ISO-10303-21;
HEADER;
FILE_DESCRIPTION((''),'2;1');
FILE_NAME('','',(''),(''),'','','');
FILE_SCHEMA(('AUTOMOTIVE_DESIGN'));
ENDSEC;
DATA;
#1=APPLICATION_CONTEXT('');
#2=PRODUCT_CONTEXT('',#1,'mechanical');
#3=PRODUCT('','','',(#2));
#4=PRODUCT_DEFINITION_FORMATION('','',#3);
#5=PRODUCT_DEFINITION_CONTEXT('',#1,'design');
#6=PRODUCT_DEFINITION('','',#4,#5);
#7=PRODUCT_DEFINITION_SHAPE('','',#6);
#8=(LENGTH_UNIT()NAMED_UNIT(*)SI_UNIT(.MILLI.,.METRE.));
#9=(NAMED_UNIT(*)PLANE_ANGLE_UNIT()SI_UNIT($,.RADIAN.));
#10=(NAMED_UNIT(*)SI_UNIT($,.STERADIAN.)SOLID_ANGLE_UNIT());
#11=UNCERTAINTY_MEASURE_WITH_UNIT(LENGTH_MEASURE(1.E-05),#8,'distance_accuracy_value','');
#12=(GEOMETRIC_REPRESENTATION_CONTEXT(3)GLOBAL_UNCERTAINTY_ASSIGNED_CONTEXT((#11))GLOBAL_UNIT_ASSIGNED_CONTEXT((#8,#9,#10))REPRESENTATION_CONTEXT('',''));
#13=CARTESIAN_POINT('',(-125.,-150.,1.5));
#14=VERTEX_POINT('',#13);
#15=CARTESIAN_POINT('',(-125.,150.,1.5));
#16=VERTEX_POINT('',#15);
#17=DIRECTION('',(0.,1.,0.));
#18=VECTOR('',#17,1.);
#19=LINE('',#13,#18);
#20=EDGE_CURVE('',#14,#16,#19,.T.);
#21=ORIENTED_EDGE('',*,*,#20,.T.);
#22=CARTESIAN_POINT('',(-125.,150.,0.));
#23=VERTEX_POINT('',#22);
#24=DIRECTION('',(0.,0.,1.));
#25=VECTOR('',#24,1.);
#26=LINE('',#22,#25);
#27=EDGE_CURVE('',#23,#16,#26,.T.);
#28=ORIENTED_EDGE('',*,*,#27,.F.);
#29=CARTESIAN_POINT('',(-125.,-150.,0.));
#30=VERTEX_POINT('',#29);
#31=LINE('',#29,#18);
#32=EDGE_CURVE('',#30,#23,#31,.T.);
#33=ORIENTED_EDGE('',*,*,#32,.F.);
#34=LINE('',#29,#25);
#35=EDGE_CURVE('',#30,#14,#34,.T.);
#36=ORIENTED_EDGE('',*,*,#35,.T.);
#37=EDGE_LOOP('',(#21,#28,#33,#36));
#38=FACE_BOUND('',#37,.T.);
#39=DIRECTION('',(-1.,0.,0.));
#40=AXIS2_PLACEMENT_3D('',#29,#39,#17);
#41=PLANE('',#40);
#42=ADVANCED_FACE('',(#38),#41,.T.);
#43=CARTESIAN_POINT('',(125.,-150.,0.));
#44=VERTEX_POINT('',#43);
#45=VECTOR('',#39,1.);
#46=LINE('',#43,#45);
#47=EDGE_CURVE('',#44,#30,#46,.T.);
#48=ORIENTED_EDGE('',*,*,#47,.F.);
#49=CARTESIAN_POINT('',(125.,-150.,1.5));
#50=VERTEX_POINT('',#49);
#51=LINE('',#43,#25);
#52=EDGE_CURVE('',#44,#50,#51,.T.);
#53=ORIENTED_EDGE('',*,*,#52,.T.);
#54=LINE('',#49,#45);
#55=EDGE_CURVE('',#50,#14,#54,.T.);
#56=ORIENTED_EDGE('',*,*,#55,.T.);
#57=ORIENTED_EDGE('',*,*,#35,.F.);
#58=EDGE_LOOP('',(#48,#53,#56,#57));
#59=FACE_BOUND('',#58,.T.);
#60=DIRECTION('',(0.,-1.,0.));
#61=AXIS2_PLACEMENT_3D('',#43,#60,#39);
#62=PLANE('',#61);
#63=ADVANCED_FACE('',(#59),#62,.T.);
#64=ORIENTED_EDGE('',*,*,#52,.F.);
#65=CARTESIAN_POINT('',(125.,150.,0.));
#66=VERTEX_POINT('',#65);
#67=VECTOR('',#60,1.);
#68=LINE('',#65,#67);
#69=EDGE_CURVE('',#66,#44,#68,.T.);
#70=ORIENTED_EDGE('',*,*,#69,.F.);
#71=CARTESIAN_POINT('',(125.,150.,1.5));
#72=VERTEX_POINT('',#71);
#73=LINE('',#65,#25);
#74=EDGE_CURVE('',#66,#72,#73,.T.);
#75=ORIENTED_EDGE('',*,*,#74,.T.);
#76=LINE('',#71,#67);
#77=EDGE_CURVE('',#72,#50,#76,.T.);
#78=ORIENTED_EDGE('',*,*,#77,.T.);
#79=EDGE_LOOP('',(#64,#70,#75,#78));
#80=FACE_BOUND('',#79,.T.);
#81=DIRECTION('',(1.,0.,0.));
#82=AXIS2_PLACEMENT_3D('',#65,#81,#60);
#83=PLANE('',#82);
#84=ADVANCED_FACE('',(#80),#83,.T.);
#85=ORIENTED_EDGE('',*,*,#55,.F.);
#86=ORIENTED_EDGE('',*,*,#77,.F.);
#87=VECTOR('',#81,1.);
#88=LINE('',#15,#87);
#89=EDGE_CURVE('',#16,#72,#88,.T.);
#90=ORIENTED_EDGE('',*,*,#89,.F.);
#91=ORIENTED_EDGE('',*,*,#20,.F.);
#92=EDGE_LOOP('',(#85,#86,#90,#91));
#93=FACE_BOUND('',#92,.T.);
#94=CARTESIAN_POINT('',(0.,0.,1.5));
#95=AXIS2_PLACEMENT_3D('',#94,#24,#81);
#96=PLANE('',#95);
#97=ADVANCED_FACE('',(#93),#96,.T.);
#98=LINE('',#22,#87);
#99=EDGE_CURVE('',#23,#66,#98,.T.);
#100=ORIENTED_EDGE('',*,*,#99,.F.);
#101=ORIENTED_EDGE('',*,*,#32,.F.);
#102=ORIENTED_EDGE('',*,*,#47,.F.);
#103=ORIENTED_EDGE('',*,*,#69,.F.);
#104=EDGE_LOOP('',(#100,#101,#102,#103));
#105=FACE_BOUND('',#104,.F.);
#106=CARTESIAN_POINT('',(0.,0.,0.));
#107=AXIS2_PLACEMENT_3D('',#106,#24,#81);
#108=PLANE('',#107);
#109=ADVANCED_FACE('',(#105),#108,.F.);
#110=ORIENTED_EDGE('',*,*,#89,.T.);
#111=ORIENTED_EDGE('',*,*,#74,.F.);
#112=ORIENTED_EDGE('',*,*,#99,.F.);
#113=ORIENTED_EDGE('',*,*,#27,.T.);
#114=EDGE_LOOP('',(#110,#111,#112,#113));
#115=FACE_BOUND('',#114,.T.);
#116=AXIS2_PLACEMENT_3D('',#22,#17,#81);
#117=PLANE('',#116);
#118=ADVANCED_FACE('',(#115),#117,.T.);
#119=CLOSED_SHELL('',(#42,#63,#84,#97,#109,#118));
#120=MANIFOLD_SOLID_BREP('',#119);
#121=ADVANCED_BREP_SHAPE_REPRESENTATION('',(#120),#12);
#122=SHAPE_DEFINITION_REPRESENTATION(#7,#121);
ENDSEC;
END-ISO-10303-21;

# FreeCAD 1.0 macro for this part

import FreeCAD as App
import Part
import Sketcher
from FreeCAD import Vector
Q = App.Units.Quantity

doc = App.newDocument("Part")
body = doc.addObject("PartDesign::Body", "Body")

sketch1 = body.newObject("Sketcher::SketchObject", "Sketch")
sketch1.AttachmentSupport = (doc.getObject("XY_Plane"), [""])
sketch1.MapMode = "FlatFace"
sketch1.addGeometry(Part.LineSegment(Vector(-125, -150, 0), Vector(125, -150, 0)), False)
sketch1.addGeometry(Part.LineSegment(Vector(125, -150, 0), Vector(125, 150, 0)), False)
sketch1.addGeometry(Part.LineSegment(Vector(125, 150, 0), Vector(-125, 150, 0)), False)
sketch1.addGeometry(Part.LineSegment(Vector(-125, 150, 0), Vector(-125, -150, 0)), False)
sketch1.addConstraint(Sketcher.Constraint("Coincident", 0, 2, 1, 1))
sketch1.addConstraint(Sketcher.Constraint("Coincident", 1, 2, 2, 1))
sketch1.addConstraint(Sketcher.Constraint("Coincident", 2, 2, 3, 1))
sketch1.addConstraint(Sketcher.Constraint("Coincident", 3, 2, 0, 1))
sketch1.addConstraint(Sketcher.Constraint("Horizontal", 0))
sketch1.addConstraint(Sketcher.Constraint("Vertical", 1))
sketch1.addConstraint(Sketcher.Constraint("Horizontal", 2))
sketch1.addConstraint(Sketcher.Constraint("Vertical", 3))
sketch1.addConstraint(Sketcher.Constraint("Symmetric", 0, 2, 2, 2, -1, 1))
sketch1.addConstraint(Sketcher.Constraint("DistanceX", 0, 1, 0, 2, Q("250 mm")))
sketch1.addConstraint(Sketcher.Constraint("DistanceY", 1, 1, 1, 2, Q("300 mm")))
pad1 = body.newObject("PartDesign::Pad", "Pad")
pad1.Profile = sketch1
pad1.Length = 1.5

doc.recompute()
